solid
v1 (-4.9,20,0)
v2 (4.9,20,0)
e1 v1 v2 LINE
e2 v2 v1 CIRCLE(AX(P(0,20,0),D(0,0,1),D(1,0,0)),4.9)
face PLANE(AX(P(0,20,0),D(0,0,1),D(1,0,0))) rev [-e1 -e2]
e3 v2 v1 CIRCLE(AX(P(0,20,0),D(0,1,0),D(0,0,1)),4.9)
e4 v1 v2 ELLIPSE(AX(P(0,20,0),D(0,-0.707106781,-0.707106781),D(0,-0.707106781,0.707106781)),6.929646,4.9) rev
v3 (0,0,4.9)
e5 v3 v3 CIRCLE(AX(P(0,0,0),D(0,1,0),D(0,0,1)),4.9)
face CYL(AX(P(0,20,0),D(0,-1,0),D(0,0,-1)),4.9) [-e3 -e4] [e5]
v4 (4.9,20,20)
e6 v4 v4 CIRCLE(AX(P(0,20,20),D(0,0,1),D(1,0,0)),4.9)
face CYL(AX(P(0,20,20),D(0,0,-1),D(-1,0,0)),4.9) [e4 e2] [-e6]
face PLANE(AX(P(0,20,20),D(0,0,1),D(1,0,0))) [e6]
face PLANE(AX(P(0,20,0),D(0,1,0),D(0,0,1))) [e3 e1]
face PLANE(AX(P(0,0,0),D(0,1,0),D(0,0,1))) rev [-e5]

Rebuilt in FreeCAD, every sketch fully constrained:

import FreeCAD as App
import Part
import Sketcher
Q = App.Units.Quantity

doc = App.newDocument("Part")
body = doc.addObject("PartDesign::Body", "Body")

sketch1 = body.newObject("Sketcher::SketchObject", "Sketch")
sketch1.AttachmentSupport = (doc.getObject("XZ_Plane"), [""])
sketch1.MapMode = "FlatFace"
sketch1.addGeometry(Part.Circle(App.Vector(0, 0, 0), App.Vector(0, 0, 1), 4.9), False)
sketch1.addConstraint([
    Sketcher.Constraint("Coincident", 0, 3, -1, 1),
    Sketcher.Constraint("Diameter", 0, Q("9.8 mm")),
])
pad1 = body.newObject("PartDesign::Pad", "Pad")
pad1.Profile = sketch1
pad1.Length = 20
pad1.Reversed = True

sketch2 = body.newObject("Sketcher::SketchObject", "Sketch001")
sketch2.AttachmentSupport = (doc.getObject("XY_Plane"), [""])
sketch2.MapMode = "FlatFace"
sketch2.addGeometry(Part.Circle(App.Vector(0, 20, 0), App.Vector(0, 0, 1), 4.9), False)
sketch2.addConstraint([
    Sketcher.Constraint("PointOnObject", 0, 3, -2),
    Sketcher.Constraint("Diameter", 0, Q("9.8 mm")),
    Sketcher.Constraint("DistanceY", -1, 1, 0, 3, Q("20 mm")),
])
pad2 = body.newObject("PartDesign::Pad", "Pad001")
pad2.Profile = sketch2
pad2.Length = 20

doc.recompute()
